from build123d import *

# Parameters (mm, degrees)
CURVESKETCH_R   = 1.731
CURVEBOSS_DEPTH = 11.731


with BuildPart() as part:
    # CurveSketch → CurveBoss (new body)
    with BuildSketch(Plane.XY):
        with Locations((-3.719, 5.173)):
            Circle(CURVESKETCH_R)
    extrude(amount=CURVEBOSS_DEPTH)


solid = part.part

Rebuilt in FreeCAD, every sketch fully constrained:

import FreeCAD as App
import Part
import Sketcher
from FreeCAD import Vector
Q = App.Units.Quantity

doc = App.newDocument("Part")
body = doc.addObject("PartDesign::Body", "Body")

# Sketch on XY plane
sketch1 = body.newObject("Sketcher::SketchObject", "Sketch")
sketch1.AttachmentSupport = (doc.getObject("XY_Plane"), [""])
sketch1.MapMode = "FlatFace"
sketch1.addGeometry(Part.Circle(Vector(-3.7, 5.2, 0), Vector(0, 0, 1), 1.7), False)
sketch1.addConstraint([
    Sketcher.Constraint("Diameter", 0, Q("3.462 mm")),
    Sketcher.Constraint("DistanceX", 0, 3, -1, 1, Q("3.719 mm")),
    Sketcher.Constraint("DistanceY", -1, 1, 0, 3, Q("5.173 mm")),
])
pad1 = body.newObject("PartDesign::Pad", "Pad")
pad1.Profile = sketch1
pad1.Length = 11.731

doc.recompute()
